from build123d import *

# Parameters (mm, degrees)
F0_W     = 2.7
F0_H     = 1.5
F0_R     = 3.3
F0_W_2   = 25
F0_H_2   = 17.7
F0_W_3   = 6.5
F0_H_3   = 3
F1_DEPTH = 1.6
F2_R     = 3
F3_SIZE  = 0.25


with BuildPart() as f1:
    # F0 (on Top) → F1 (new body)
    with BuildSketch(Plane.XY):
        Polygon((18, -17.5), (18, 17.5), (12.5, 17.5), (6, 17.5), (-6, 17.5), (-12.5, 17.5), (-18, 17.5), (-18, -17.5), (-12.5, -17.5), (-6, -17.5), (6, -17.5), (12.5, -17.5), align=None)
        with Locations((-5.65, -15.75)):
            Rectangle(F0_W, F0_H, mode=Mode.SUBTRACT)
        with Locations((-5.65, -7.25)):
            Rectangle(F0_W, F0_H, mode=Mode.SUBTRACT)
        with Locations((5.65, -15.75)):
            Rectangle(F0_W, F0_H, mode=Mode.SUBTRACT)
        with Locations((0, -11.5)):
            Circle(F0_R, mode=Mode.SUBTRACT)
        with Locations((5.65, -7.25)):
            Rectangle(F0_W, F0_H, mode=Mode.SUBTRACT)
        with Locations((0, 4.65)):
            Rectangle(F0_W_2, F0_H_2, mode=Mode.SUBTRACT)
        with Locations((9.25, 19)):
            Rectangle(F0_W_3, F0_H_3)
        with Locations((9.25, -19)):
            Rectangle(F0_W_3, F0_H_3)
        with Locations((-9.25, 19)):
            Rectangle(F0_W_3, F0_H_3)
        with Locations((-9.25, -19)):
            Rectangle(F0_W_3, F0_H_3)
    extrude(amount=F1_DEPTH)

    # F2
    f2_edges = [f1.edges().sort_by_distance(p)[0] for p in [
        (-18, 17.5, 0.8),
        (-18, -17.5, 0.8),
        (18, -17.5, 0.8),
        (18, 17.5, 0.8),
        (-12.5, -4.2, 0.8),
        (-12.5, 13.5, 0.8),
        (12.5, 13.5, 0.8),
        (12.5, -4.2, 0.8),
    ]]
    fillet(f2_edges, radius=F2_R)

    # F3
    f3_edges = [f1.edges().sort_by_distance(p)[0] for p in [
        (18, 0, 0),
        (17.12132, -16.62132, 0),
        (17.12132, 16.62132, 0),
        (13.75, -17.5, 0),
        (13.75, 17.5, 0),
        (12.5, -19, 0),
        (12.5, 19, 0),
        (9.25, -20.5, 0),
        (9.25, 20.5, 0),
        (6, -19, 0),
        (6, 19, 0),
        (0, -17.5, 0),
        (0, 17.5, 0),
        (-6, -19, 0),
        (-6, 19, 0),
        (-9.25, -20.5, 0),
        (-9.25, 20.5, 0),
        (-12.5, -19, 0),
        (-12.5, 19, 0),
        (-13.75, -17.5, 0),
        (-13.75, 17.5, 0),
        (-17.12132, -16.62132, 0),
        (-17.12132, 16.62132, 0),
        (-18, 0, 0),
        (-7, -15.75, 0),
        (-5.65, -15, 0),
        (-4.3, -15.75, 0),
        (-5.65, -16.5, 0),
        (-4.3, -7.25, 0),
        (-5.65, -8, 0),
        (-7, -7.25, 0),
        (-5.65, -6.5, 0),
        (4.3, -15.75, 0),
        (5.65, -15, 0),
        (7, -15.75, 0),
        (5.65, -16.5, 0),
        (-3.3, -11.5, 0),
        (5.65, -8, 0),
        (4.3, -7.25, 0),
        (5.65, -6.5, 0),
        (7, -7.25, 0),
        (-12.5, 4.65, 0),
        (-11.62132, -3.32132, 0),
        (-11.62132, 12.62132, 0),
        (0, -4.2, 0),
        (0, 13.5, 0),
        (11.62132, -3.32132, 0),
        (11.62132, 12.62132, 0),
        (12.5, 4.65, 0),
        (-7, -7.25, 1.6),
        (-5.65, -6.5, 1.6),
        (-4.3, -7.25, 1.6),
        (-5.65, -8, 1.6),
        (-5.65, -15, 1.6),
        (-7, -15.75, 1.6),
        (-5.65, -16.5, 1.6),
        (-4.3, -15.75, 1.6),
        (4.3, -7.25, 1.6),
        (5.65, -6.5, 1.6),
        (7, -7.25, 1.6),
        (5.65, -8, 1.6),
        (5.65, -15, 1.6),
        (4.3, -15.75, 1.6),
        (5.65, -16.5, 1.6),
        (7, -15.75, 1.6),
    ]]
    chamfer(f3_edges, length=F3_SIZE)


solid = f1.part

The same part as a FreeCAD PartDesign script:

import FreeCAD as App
import Part
import Sketcher

V = App.Vector


def edges_at(feature, points):
    """Names of the edges that pass closest to the given points."""
    edges = feature.Shape.Edges
    near = lambda p: min(range(len(edges)), key=lambda i: edges[i].distToShape(Part.Vertex(*p))[0])
    return sorted({f"Edge{near(p) + 1}" for p in points})

doc = App.newDocument("Part")
body = doc.addObject("PartDesign::Body", "Body")

# Sketch on XY plane
sketch1 = body.newObject("Sketcher::SketchObject", "Sketch")
sketch1.AttachmentSupport = (doc.getObject("XY_Plane"), [""])
sketch1.MapMode = "FlatFace"
sketch1.addGeometry([
    Part.LineSegment(V(18, -17.5, 0), V(18, 17.5, 0)),  # 0
    Part.LineSegment(V(18, 17.5, 0), V(12.5, 17.5, 0)),  # 1
    Part.LineSegment(V(12.5, 17.5, 0), V(12.5, 20.5, 0)),  # 2
    Part.LineSegment(V(12.5, 20.5, 0), V(6, 20.5, 0)),  # 3
    Part.LineSegment(V(6, 20.5, 0), V(6, 17.5, 0)),  # 4
    Part.LineSegment(V(6, 17.5, 0), V(-6, 17.5, 0)),  # 5
    Part.LineSegment(V(-6, 17.5, 0), V(-6, 20.5, 0)),  # 6
    Part.LineSegment(V(-6, 20.5, 0), V(-12.5, 20.5, 0)),  # 7
    Part.LineSegment(V(-12.5, 20.5, 0), V(-12.5, 17.5, 0)),  # 8
    Part.LineSegment(V(-12.5, 17.5, 0), V(-18, 17.5, 0)),  # 9
    Part.LineSegment(V(-18, 17.5, 0), V(-18, -17.5, 0)),  # 10
    Part.LineSegment(V(-18, -17.5, 0), V(-12.5, -17.5, 0)),  # 11
    Part.LineSegment(V(-12.5, -17.5, 0), V(-12.5, -20.5, 0)),  # 12
    Part.LineSegment(V(-12.5, -20.5, 0), V(-6, -20.5, 0)),  # 13
    Part.LineSegment(V(-6, -20.5, 0), V(-6, -17.5, 0)),  # 14
    Part.LineSegment(V(-6, -17.5, 0), V(6, -17.5, 0)),  # 15
    Part.LineSegment(V(6, -17.5, 0), V(6, -20.5, 0)),  # 16
    Part.LineSegment(V(6, -20.5, 0), V(12.5, -20.5, 0)),  # 17
    Part.LineSegment(V(12.5, -20.5, 0), V(12.5, -17.5, 0)),  # 18
    Part.LineSegment(V(12.5, -17.5, 0), V(18, -17.5, 0)),  # 19
    Part.LineSegment(V(-4.3, -16.5, 0), V(-7, -16.5, 0)),  # 20
    Part.LineSegment(V(-7, -16.5, 0), V(-7, -15, 0)),  # 21
    Part.LineSegment(V(-7, -15, 0), V(-4.3, -15, 0)),  # 22
    Part.LineSegment(V(-4.3, -15, 0), V(-4.3, -16.5, 0)),  # 23
    Part.LineSegment(V(-4.3, -8, 0), V(-7, -8, 0)),  # 24
    Part.LineSegment(V(-7, -8, 0), V(-7, -6.5, 0)),  # 25
    Part.LineSegment(V(-7, -6.5, 0), V(-4.3, -6.5, 0)),  # 26
    Part.LineSegment(V(-4.3, -6.5, 0), V(-4.3, -8, 0)),  # 27
    Part.LineSegment(V(7, -16.5, 0), V(4.3, -16.5, 0)),  # 28
    Part.LineSegment(V(4.3, -16.5, 0), V(4.3, -15, 0)),  # 29
    Part.LineSegment(V(4.3, -15, 0), V(7, -15, 0)),  # 30
    Part.LineSegment(V(7, -15, 0), V(7, -16.5, 0)),  # 31
    Part.Circle(V(0, -11.5, 0), V(0, 0, 1), 3.3),  # 32
    Part.LineSegment(V(7, -8, 0), V(4.3, -8, 0)),  # 33
    Part.LineSegment(V(4.3, -8, 0), V(4.3, -6.5, 0)),  # 34
    Part.LineSegment(V(4.3, -6.5, 0), V(7, -6.5, 0)),  # 35
    Part.LineSegment(V(7, -6.5, 0), V(7, -8, 0)),  # 36
    Part.LineSegment(V(12.5, -4.2, 0), V(-12.5, -4.2, 0)),  # 37
    Part.LineSegment(V(-12.5, -4.2, 0), V(-12.5, 13.5, 0)),  # 38
    Part.LineSegment(V(-12.5, 13.5, 0), V(12.5, 13.5, 0)),  # 39
    Part.LineSegment(V(12.5, 13.5, 0), V(12.5, -4.2, 0)),  # 40
], False)
sketch1.addConstraint([
    Sketcher.Constraint("Coincident", 0, 2, 1, 1),
    Sketcher.Constraint("Coincident", 1, 2, 2, 1),
    Sketcher.Constraint("Coincident", 2, 2, 3, 1),
    Sketcher.Constraint("Coincident", 3, 2, 4, 1),
    Sketcher.Constraint("Coincident", 4, 2, 5, 1),
    Sketcher.Constraint("Coincident", 5, 2, 6, 1),
    Sketcher.Constraint("Coincident", 6, 2, 7, 1),
    Sketcher.Constraint("Coincident", 7, 2, 8, 1),
    Sketcher.Constraint("Coincident", 8, 2, 9, 1),
    Sketcher.Constraint("Coincident", 9, 2, 10, 1),
    Sketcher.Constraint("Coincident", 10, 2, 11, 1),
    Sketcher.Constraint("Coincident", 11, 2, 12, 1),
    Sketcher.Constraint("Coincident", 12, 2, 13, 1),
    Sketcher.Constraint("Coincident", 13, 2, 14, 1),
    Sketcher.Constraint("Coincident", 14, 2, 15, 1),
    Sketcher.Constraint("Coincident", 15, 2, 16, 1),
    Sketcher.Constraint("Coincident", 16, 2, 17, 1),
    Sketcher.Constraint("Coincident", 17, 2, 18, 1),
    Sketcher.Constraint("Coincident", 18, 2, 19, 1),
    Sketcher.Constraint("Coincident", 19, 2, 0, 1),
    Sketcher.Constraint("Coincident", 20, 2, 21, 1),
    Sketcher.Constraint("Coincident", 21, 2, 22, 1),
    Sketcher.Constraint("Coincident", 22, 2, 23, 1),
    Sketcher.Constraint("Coincident", 23, 2, 20, 1),
    Sketcher.Constraint("Coincident", 24, 2, 25, 1),
    Sketcher.Constraint("Coincident", 25, 2, 26, 1),
    Sketcher.Constraint("Coincident", 26, 2, 27, 1),
    Sketcher.Constraint("Coincident", 27, 2, 24, 1),
    Sketcher.Constraint("Coincident", 28, 2, 29, 1),
    Sketcher.Constraint("Coincident", 29, 2, 30, 1),
    Sketcher.Constraint("Coincident", 30, 2, 31, 1),
    Sketcher.Constraint("Coincident", 31, 2, 28, 1),
    Sketcher.Constraint("Coincident", 33, 2, 34, 1),
    Sketcher.Constraint("Coincident", 34, 2, 35, 1),
    Sketcher.Constraint("Coincident", 35, 2, 36, 1),
    Sketcher.Constraint("Coincident", 36, 2, 33, 1),
    Sketcher.Constraint("Coincident", 37, 2, 38, 1),
    Sketcher.Constraint("Coincident", 38, 2, 39, 1),
    Sketcher.Constraint("Coincident", 39, 2, 40, 1),
    Sketcher.Constraint("Coincident", 40, 2, 37, 1),
    Sketcher.Constraint("Vertical", 0),
    Sketcher.Constraint("Horizontal", 1),
    Sketcher.Constraint("Vertical", 2),
    Sketcher.Constraint("Horizontal", 3),
    Sketcher.Constraint("Vertical", 4),
    Sketcher.Constraint("Horizontal", 5),
    Sketcher.Constraint("Vertical", 6),
    Sketcher.Constraint("Horizontal", 7),
    Sketcher.Constraint("Vertical", 8),
    Sketcher.Constraint("Horizontal", 9),
    Sketcher.Constraint("Vertical", 10),
    Sketcher.Constraint("Horizontal", 11),
    Sketcher.Constraint("Vertical", 12),
    Sketcher.Constraint("Horizontal", 13),
    Sketcher.Constraint("Vertical", 14),
    Sketcher.Constraint("Horizontal", 15),
    Sketcher.Constraint("Vertical", 16),
    Sketcher.Constraint("Horizontal", 17),
    Sketcher.Constraint("Vertical", 18),
    Sketcher.Constraint("Horizontal", 19),
    Sketcher.Constraint("Horizontal", 20),
    Sketcher.Constraint("Vertical", 21),
    Sketcher.Constraint("Horizontal", 22),
    Sketcher.Constraint("Vertical", 23),
    Sketcher.Constraint("Horizontal", 24),
    Sketcher.Constraint("Vertical", 25),
    Sketcher.Constraint("Horizontal", 26),
    Sketcher.Constraint("Vertical", 27),
    Sketcher.Constraint("Horizontal", 28),
    Sketcher.Constraint("Vertical", 29),
    Sketcher.Constraint("Horizontal", 30),
    Sketcher.Constraint("Vertical", 31),
    Sketcher.Constraint("Horizontal", 33),
    Sketcher.Constraint("Vertical", 34),
    Sketcher.Constraint("Horizontal", 35),
    Sketcher.Constraint("Vertical", 36),
    Sketcher.Constraint("Horizontal", 37),
    Sketcher.Constraint("Vertical", 38),
    Sketcher.Constraint("Horizontal", 39),
    Sketcher.Constraint("Vertical", 40),
    Sketcher.Constraint("Symmetric", 0, 2, 10, 2, -1, 1),
    Sketcher.Constraint("Symmetric", 2, 2, 12, 2, -1, 1),
    Sketcher.Constraint("Symmetric", 4, 2, 14, 2, -1, 1),
    Sketcher.Constraint("Symmetric", 6, 2, 16, 2, -1, 1),
    Sketcher.Constraint("Symmetric", 8, 2, 18, 2, -1, 1),
    Sketcher.Constraint("Symmetric", 3, 2, 6, 2, -2),
    Sketcher.Constraint("Symmetric", 1, 2, 8, 2, -2),
    Sketcher.Constraint("Symmetric", 23, 2, 28, 2, -2),
    Sketcher.Constraint("Symmetric", 21, 2, 30, 2, -2),
    Sketcher.Constraint("Symmetric", 27, 2, 33, 2, -2),
    Sketcher.Constraint("Symmetric", 25, 2, 35, 2, -2),
    Sketcher.Constraint("PointOnObject", 32, 3, -2),
    Sketcher.Constraint("Horizontal", 1, 2, 4, 2),
    Sketcher.Constraint("Vertical", 21, 2, 24, 2),
    Sketcher.Constraint("Vertical", 23, 2, 26, 2),
    Sketcher.Constraint("Vertical", 12, 2, 37, 2),
    Sketcher.Constraint("Vertical", 18, 2, 39, 2),
    Sketcher.Constraint("Equal", 23, 25),
    Sketcher.Constraint("Diameter", 32, 6.6),
    Sketcher.Constraint("DistanceX", 5, 2, 5, 1, 12.0),
    Sketcher.Constraint("DistanceX", 37, 2, 37, 1, 25.0),
    Sketcher.Constraint("DistanceY", 0, 1, 0, 2, 35.0),
    Sketcher.Constraint("DistanceY", 2, 1, 2, 2, 3.0),
    Sketcher.Constraint("DistanceX", 1, 2, 1, 1, 5.5),
    Sketcher.Constraint("DistanceX", 20, 2, 20, 1, 2.7),
    Sketcher.Constraint("DistanceY", 21, 1, 21, 2, 1.5),
    Sketcher.Constraint("DistanceY", 38, 1, 38, 2, 17.7),
    Sketcher.Constraint("DistanceX", 20, 2, -1, 1, 7.0),
    Sketcher.Constraint("DistanceY", 21, 2, -1, 1, 15.0),
    Sketcher.Constraint("DistanceY", 24, 2, -1, 1, 8.0),
    Sketcher.Constraint("DistanceY", 32, 3, 0, 2, 29.0),
    Sketcher.Constraint("DistanceY", 38, 2, 8, 2, 4.0),
])
pad1 = body.newObject("PartDesign::Pad", "Pad")
pad1.Profile = sketch1
pad1.Length = 1.6
doc.recompute()

fillet = body.newObject("PartDesign::Fillet", "Fillet")
fillet.Base = (pad1, edges_at(pad1, [
    (-18, 17.5, 0.8),
    (-18, -17.5, 0.8),
    (18, -17.5, 0.8),
    (18, 17.5, 0.8),
    (-12.5, -4.2, 0.8),
    (-12.5, 13.5, 0.8),
    (12.5, 13.5, 0.8),
    (12.5, -4.2, 0.8),
]))
fillet.Radius = 3
doc.recompute()

chamfer = body.newObject("PartDesign::Chamfer", "Chamfer")
chamfer.Base = (fillet, edges_at(fillet, [
    (18, 0, 0),
    (17.121, -16.621, 0),
    (17.121, 16.621, 0),
    (13.75, -17.5, 0),
    (13.75, 17.5, 0),
    (12.5, -19, 0),
    (12.5, 19, 0),
    (9.25, -20.5, 0),
    (9.25, 20.5, 0),
    (6, -19, 0),
    (6, 19, 0),
    (0, -17.5, 0),
    (0, 17.5, 0),
    (-6, -19, 0),
    (-6, 19, 0),
    (-9.25, -20.5, 0),
    (-9.25, 20.5, 0),
    (-12.5, -19, 0),
    (-12.5, 19, 0),
    (-13.75, -17.5, 0),
    (-13.75, 17.5, 0),
    (-17.121, -16.621, 0),
    (-17.121, 16.621, 0),
    (-18, 0, 0),
    (-7, -15.75, 0),
    (-5.65, -15, 0),
    (-4.3, -15.75, 0),
    (-5.65, -16.5, 0),
    (-4.3, -7.25, 0),
    (-5.65, -8, 0),
    (-7, -7.25, 0),
    (-5.65, -6.5, 0),
    (4.3, -15.75, 0),
    (5.65, -15, 0),
    (7, -15.75, 0),
    (5.65, -16.5, 0),
    (-3.3, -11.5, 0),
    (5.65, -8, 0),
    (4.3, -7.25, 0),
    (5.65, -6.5, 0),
    (7, -7.25, 0),
    (-12.5, 4.65, 0),
    (-11.621, -3.321, 0),
    (-11.621, 12.621, 0),
    (0, -4.2, 0),
    (0, 13.5, 0),
    (11.621, -3.321, 0),
    (11.621, 12.621, 0),
    (12.5, 4.65, 0),
    (-7, -7.25, 1.6),
    (-5.65, -6.5, 1.6),
    (-4.3, -7.25, 1.6),
    (-5.65, -8, 1.6),
    (-5.65, -15, 1.6),
    (-7, -15.75, 1.6),
    (-5.65, -16.5, 1.6),
    (-4.3, -15.75, 1.6),
    (4.3, -7.25, 1.6),
    (5.65, -6.5, 1.6),
    (7, -7.25, 1.6),
    (5.65, -8, 1.6),
    (5.65, -15, 1.6),
    (4.3, -15.75, 1.6),
    (5.65, -16.5, 1.6),
    (7, -15.75, 1.6),
]))
chamfer.Size = 0.25

doc.recompute()
